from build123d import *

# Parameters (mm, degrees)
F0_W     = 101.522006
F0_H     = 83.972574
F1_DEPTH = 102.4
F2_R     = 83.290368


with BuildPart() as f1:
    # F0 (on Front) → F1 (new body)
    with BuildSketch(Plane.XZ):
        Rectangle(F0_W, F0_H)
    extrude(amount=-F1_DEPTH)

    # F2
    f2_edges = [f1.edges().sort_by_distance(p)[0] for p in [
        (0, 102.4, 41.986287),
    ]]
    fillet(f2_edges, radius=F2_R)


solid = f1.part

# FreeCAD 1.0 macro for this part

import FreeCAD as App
import Part
import Sketcher
from FreeCAD import Vector
Q = App.Units.Quantity


def edges_at(feature, points):
    """Names of the edges that pass closest to the given points."""
    edges = feature.Shape.Edges
    near = lambda p: min(range(len(edges)), key=lambda i: edges[i].distToShape(Part.Vertex(*p))[0])
    return sorted({f"Edge{near(p) + 1}" for p in points})


def add_polygon(sketch, points):
    """Adds a closed chain of lines whose ends are joined by coincident constraints."""
    first, n = sketch.GeometryCount, len(points)
    for a, b in zip(points, points[1:] + points[:1]):
        sketch.addGeometry(Part.LineSegment(App.Vector(*a, 0), App.Vector(*b, 0)), False)
    for i in range(n):
        sketch.addConstraint(Sketcher.Constraint("Coincident", first + i, 2, first + (i + 1) % n, 1))

doc = App.newDocument("Part")
body = doc.addObject("PartDesign::Body", "Body")

sketch1 = body.newObject("Sketcher::SketchObject", "Sketch")
sketch1.AttachmentSupport = (doc.getObject("XZ_Plane"), [""])
sketch1.MapMode = "FlatFace"
add_polygon(sketch1, [(-51, 42), (-51, -42), (51, -42), (51, 42)])
sketch1.addConstraint([
    Sketcher.Constraint("Vertical", 0),
    Sketcher.Constraint("Horizontal", 1),
    Sketcher.Constraint("Vertical", 2),
    Sketcher.Constraint("Horizontal", 3),
    Sketcher.Constraint("Symmetric", 0, 2, 2, 2, -1, 1),
    Sketcher.Constraint("DistanceX", 1, 1, 1, 2, Q("101.522006 mm")),
    Sketcher.Constraint("DistanceY", 0, 2, 0, 1, Q("83.972574 mm")),
])
pad1 = body.newObject("PartDesign::Pad", "Pad")
pad1.Profile = sketch1
pad1.Length = 102.4
pad1.Reversed = True
doc.recompute()

fillet = body.newObject("PartDesign::Fillet", "Fillet")
fillet.Base = (pad1, edges_at(pad1, [(0, 102.4, 41.986)]))
fillet.Radius = 83.290368

doc.recompute()
